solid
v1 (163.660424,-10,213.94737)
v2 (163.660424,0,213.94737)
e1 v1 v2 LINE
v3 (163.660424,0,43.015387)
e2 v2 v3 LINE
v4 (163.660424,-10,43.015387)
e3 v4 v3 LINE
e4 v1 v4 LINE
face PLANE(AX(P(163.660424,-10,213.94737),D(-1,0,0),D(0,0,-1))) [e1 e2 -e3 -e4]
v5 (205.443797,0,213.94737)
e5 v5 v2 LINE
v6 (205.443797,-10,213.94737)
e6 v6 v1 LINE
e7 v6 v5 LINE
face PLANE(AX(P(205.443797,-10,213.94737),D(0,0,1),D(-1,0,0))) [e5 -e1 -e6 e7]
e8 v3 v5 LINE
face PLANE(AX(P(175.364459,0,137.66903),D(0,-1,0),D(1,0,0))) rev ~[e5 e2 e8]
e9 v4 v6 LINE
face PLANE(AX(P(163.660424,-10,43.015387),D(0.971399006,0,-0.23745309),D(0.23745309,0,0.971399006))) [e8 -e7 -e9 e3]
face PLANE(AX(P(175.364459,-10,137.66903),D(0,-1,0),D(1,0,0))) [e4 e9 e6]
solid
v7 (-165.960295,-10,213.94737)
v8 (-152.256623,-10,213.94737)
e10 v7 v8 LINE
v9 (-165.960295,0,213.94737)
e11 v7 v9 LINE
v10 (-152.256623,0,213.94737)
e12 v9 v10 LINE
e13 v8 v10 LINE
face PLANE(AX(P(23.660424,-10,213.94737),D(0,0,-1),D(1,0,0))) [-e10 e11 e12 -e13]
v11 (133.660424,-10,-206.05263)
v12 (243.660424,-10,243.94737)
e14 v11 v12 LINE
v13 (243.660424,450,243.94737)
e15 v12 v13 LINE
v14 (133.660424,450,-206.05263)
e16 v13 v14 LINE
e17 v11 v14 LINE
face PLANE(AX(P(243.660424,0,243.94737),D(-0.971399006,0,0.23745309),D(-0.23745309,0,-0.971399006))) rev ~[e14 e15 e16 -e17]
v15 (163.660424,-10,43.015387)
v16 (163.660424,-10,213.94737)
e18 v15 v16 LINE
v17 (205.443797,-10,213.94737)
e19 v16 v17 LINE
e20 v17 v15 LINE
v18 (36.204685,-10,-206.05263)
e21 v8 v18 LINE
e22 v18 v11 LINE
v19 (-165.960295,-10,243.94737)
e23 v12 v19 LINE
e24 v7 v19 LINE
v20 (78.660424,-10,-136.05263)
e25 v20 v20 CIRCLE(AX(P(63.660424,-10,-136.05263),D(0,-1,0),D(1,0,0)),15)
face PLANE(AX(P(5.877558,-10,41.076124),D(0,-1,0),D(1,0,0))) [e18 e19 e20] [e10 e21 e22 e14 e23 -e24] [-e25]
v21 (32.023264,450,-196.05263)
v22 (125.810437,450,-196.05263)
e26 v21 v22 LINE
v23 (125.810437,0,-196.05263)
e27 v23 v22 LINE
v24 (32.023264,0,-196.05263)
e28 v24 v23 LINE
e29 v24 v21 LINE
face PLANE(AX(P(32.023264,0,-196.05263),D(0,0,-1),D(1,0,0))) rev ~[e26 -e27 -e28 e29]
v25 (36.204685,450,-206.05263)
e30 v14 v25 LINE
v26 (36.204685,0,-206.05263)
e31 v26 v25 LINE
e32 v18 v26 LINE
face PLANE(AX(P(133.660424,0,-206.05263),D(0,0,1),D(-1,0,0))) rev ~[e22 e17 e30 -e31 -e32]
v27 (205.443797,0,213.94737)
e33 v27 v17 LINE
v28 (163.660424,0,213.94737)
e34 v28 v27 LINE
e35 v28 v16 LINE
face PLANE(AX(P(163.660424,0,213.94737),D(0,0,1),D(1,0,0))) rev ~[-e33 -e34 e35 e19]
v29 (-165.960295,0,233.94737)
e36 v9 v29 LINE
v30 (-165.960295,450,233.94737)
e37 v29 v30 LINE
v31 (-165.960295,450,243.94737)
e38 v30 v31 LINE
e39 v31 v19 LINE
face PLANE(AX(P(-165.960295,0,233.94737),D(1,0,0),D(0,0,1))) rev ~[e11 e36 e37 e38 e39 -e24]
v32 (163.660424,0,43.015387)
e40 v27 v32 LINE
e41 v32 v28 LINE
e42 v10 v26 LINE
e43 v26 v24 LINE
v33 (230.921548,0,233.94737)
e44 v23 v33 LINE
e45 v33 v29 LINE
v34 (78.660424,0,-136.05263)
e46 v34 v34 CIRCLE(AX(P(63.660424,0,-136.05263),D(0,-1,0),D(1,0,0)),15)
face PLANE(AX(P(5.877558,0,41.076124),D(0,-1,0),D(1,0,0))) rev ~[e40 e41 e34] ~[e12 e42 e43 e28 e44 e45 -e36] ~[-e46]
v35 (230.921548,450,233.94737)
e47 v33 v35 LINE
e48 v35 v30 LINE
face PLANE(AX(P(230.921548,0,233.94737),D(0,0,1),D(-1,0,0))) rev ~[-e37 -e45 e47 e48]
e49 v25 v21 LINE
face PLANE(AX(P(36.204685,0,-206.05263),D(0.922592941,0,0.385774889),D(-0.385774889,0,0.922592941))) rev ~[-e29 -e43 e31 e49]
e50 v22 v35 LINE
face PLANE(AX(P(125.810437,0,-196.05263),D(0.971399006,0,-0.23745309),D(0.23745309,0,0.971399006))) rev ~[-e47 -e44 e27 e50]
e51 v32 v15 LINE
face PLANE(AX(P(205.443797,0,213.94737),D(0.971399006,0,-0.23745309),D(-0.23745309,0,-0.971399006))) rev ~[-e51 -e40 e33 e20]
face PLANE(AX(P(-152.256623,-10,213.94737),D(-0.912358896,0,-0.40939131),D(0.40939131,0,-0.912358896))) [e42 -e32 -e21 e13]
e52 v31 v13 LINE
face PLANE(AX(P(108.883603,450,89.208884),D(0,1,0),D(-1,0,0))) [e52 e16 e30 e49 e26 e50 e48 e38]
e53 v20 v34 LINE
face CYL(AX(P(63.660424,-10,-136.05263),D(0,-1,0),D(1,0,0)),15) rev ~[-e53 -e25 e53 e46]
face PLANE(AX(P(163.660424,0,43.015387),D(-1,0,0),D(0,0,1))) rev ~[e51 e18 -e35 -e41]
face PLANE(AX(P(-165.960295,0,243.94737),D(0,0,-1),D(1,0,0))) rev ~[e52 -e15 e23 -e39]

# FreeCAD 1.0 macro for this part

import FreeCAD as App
import Part
import Sketcher

V = App.Vector
Q = App.Units.Quantity


def add_polygon(sketch, points):
    """Adds a closed chain of lines whose ends are joined by coincident constraints."""
    first, n = sketch.GeometryCount, len(points)
    for a, b in zip(points, points[1:] + points[:1]):
        sketch.addGeometry(Part.LineSegment(App.Vector(*a, 0), App.Vector(*b, 0)), False)
    for i in range(n):
        sketch.addConstraint(Sketcher.Constraint("Coincident", first + i, 2, first + (i + 1) % n, 1))

doc = App.newDocument("Part")
body = doc.addObject("PartDesign::Body", "Body")

# Sketch on XZ plane
sketch1 = doc.addObject("Sketcher::SketchObject", "Sketch")
body.addObject(sketch1)
sketch1.AttachmentSupport = (doc.XZ_Plane, [""])
sketch1.MapMode = "FlatFace"
add_polygon(sketch1, [(-576, 244), (-466, -206), (134, -206), (244, 244)])  # lines 0-3
add_polygon(sketch1, [(104, -176), (-436, -176), (-436, 214), (104, 214)])  # lines 4-7
add_polygon(sketch1, [(-496, 214), (-496, 43), (-537, 214)])  # lines 8-10
add_polygon(sketch1, [(164, 43), (164, 214), (205, 214)])  # lines 11-13
sketch1.addConstraint(Sketcher.Constraint("Horizontal", 1))
sketch1.addConstraint(Sketcher.Constraint("Horizontal", 3))
sketch1.addConstraint(Sketcher.Constraint("Horizontal", 4))
sketch1.addConstraint(Sketcher.Constraint("Vertical", 5))
sketch1.addConstraint(Sketcher.Constraint("Horizontal", 6))
sketch1.addConstraint(Sketcher.Constraint("Vertical", 7))
sketch1.addConstraint(Sketcher.Constraint("Vertical", 8))
sketch1.addConstraint(Sketcher.Constraint("Horizontal", 10))
sketch1.addConstraint(Sketcher.Constraint("Vertical", 11))
sketch1.addConstraint(Sketcher.Constraint("Horizontal", 12))
sketch1.addConstraint(Sketcher.Constraint("Parallel", 0, 9))
sketch1.addConstraint(Sketcher.Constraint("Parallel", 2, 13))
sketch1.addConstraint(Sketcher.Constraint("Horizontal", 6, 2, 9, 2))
sketch1.addConstraint(Sketcher.Constraint("Horizontal", 10, 2, 11, 2))
sketch1.addConstraint(Sketcher.Constraint("Horizontal", 8, 2, 13, 2))
sketch1.addConstraint(Sketcher.Constraint("Equal", 10, 12))
sketch1.addConstraint(Sketcher.Constraint("DistanceX", 4, 2, 4, 1, Q("540 mm")))
sketch1.addConstraint(Sketcher.Constraint("DistanceY", 5, 1, 5, 2, Q("390 mm")))
sketch1.addConstraint(Sketcher.Constraint("DistanceX", 1, 2, 2, 2, Q("110 mm")))
sketch1.addConstraint(Sketcher.Constraint("DistanceY", 1, 2, 2, 2, Q("450 mm")))
sketch1.addConstraint(Sketcher.Constraint("DistanceY", 0, 2, 4, 2, Q("30 mm")))
sketch1.addConstraint(Sketcher.Constraint("DistanceX", 4, 2, 1, 2, Q("570 mm")))
sketch1.addConstraint(Sketcher.Constraint("DistanceX", 3, 2, 8, 2, Q("80 mm")))
sketch1.addConstraint(Sketcher.Constraint("DistanceX", 6, 2, 11, 2, Q("60 mm")))
sketch1.addConstraint(Sketcher.Constraint("Distance", 9, Q("175.96475 mm")))
sketch1.addConstraint(Sketcher.Constraint("DistanceX", 1, 1, 1, 2, Q("599.241438 mm")))
sketch1.addConstraint(Sketcher.Constraint("DistanceY", 0, 2, -1, 1, Q("206.05263 mm")))
sketch1.addConstraint(Sketcher.Constraint("DistanceX", 0, 2, -1, 1, Q("465.581014 mm")))
pad1 = doc.addObject("PartDesign::Pad", "Pad")
body.addObject(pad1)
pad1.Profile = sketch1
pad1.Length = 10

# Sketch on XZ plane
sketch2 = doc.addObject("Sketcher::SketchObject", "Sketch001")
body.addObject(sketch2)
sketch2.AttachmentSupport = (doc.XZ_Plane, [""])
sketch2.MapMode = "FlatFace"
sketch2.AttachmentOffset = App.Placement(V(0, 0, 10), App.Rotation())
add_polygon(sketch2, [(-436, 214), (-436, 134), (-356, 134), (-356, 214)])  # lines 0-3
sketch2.addGeometry(Part.Circle(V(-396, 174, 0), V(0, 0, 1), 15), False)  # 4
add_polygon(sketch2, [(24, 214), (24, 134), (104, 134), (104, 214)])  # lines 5-8
sketch2.addGeometry(Part.Circle(V(64, 174, 0), V(0, 0, 1), 15), False)  # 9
add_polygon(sketch2, [(24, -96), (24, -176), (104, -176), (104, -96)])  # lines 10-13
sketch2.addGeometry(Part.Circle(V(64, -136, 0), V(0, 0, 1), 15), False)  # 14
add_polygon(sketch2, [(-436, -96), (-436, -176), (-356, -176), (-356, -96)])  # lines 15-18
sketch2.addGeometry(Part.Circle(V(-396, -136, 0), V(0, 0, 1), 15), False)  # 19
sketch2.addConstraint(Sketcher.Constraint("Vertical", 0))
sketch2.addConstraint(Sketcher.Constraint("Horizontal", 1))
sketch2.addConstraint(Sketcher.Constraint("Vertical", 2))
sketch2.addConstraint(Sketcher.Constraint("Horizontal", 3))
sketch2.addConstraint(Sketcher.Constraint("Vertical", 5))
sketch2.addConstraint(Sketcher.Constraint("Horizontal", 6))
sketch2.addConstraint(Sketcher.Constraint("Vertical", 7))
sketch2.addConstraint(Sketcher.Constraint("Horizontal", 8))
sketch2.addConstraint(Sketcher.Constraint("Vertical", 10))
sketch2.addConstraint(Sketcher.Constraint("Horizontal", 11))
sketch2.addConstraint(Sketcher.Constraint("Vertical", 12))
sketch2.addConstraint(Sketcher.Constraint("Horizontal", 13))
sketch2.addConstraint(Sketcher.Constraint("Vertical", 15))
sketch2.addConstraint(Sketcher.Constraint("Horizontal", 16))
sketch2.addConstraint(Sketcher.Constraint("Vertical", 17))
sketch2.addConstraint(Sketcher.Constraint("Horizontal", 18))
sketch2.addConstraint(Sketcher.Constraint("Equal", 4, 9))
sketch2.addConstraint(Sketcher.Constraint("Equal", 9, 14))
sketch2.addConstraint(Sketcher.Constraint("Equal", 14, 19))
sketch2.addConstraint(Sketcher.Constraint("Horizontal", 4, 3, 9, 3))
sketch2.addConstraint(Sketcher.Constraint("Horizontal", 14, 3, 19, 3))
sketch2.addConstraint(Sketcher.Constraint("Horizontal", 1, 2, 5, 2))
sketch2.addConstraint(Sketcher.Constraint("Horizontal", 3, 2, 7, 2))
sketch2.addConstraint(Sketcher.Constraint("Horizontal", 11, 2, 15, 2))
sketch2.addConstraint(Sketcher.Constraint("Horizontal", 13, 2, 17, 2))
sketch2.addConstraint(Sketcher.Constraint("Vertical", 9, 3, 14, 3))
sketch2.addConstraint(Sketcher.Constraint("Vertical", 4, 3, 19, 3))
sketch2.addConstraint(Sketcher.Constraint("Vertical", 8, 2, 10, 2))
sketch2.addConstraint(Sketcher.Constraint("Vertical", 7, 2, 11, 2))
sketch2.addConstraint(Sketcher.Constraint("Vertical", 3, 2, 15, 2))
sketch2.addConstraint(Sketcher.Constraint("Vertical", 2, 2, 16, 2))
sketch2.addConstraint(Sketcher.Constraint("Equal", 3, 6))
sketch2.addConstraint(Sketcher.Constraint("Equal", 18, 0))
sketch2.addConstraint(Sketcher.Constraint("Equal", 7, 10))
sketch2.addConstraint(Sketcher.Constraint("Diameter", 4, Q("30 mm")))
sketch2.addConstraint(Sketcher.Constraint("DistanceX", 1, 1, 1, 2, Q("80 mm")))
sketch2.addConstraint(Sketcher.Constraint("DistanceX", 4, 3, 9, 3, Q("460 mm")))
sketch2.addConstraint(Sketcher.Constraint("DistanceY", 14, 3, 9, 3, Q("310 mm")))
sketch2.addConstraint(Sketcher.Constraint("DistanceX", 0, 2, 4, 3, Q("40 mm")))
sketch2.addConstraint(Sketcher.Constraint("DistanceY", 0, 2, 4, 3, Q("40 mm")))
sketch2.addConstraint(Sketcher.Constraint("DistanceX", 5, 2, 9, 3, Q("40 mm")))
sketch2.addConstraint(Sketcher.Constraint("DistanceY", 10, 2, 14, 3, Q("40 mm")))
sketch2.addConstraint(Sketcher.Constraint("DistanceY", -1, 1, 4, 3, Q("173.94737 mm")))
sketch2.addConstraint(Sketcher.Constraint("DistanceX", 4, 3, -1, 1, Q("396.339576 mm")))
pad2 = doc.addObject("PartDesign::Pad", "Pad001")
body.addObject(pad2)
pad2.Profile = sketch2
pad2.Length = 10
pad2.Reversed = True

# Sketch on XZ plane
sketch3 = doc.addObject("Sketcher::SketchObject", "Sketch002")
body.addObject(sketch3)
sketch3.AttachmentSupport = (doc.XZ_Plane, [""])
sketch3.MapMode = "FlatFace"
sketch3.AttachmentOffset = App.Placement(V(0, 0, 10), App.Rotation())
add_polygon(sketch3, [(-670, -206), (-166, -206), (-166, 244), (-670, 244)])  # lines 0-3
sketch3.addGeometry(Part.Circle(V(-396, -136, 0), V(0, 0, 1), 15), False)  # 4
add_polygon(sketch3, [(-537, 214), (-496, 214), (-496, 43)])  # lines 5-7
sketch3.addGeometry(Part.Circle(V(-396, 174, 0), V(0, 0, 1), 15), False)  # 8
sketch3.addConstraint(Sketcher.Constraint("Horizontal", 0))
sketch3.addConstraint(Sketcher.Constraint("Vertical", 1))
sketch3.addConstraint(Sketcher.Constraint("Horizontal", 2))
sketch3.addConstraint(Sketcher.Constraint("Vertical", 3))
sketch3.addConstraint(Sketcher.Constraint("Horizontal", 5))
sketch3.addConstraint(Sketcher.Constraint("Vertical", 6))
sketch3.addConstraint(Sketcher.Constraint("Equal", 4, 8))
sketch3.addConstraint(Sketcher.Constraint("Vertical", 4, 3, 8, 3))
sketch3.addConstraint(Sketcher.Constraint("Diameter", 4, Q("30 mm")))
sketch3.addConstraint(Sketcher.Constraint("DistanceY", 1, 1, 1, 2, Q("450 mm")))
sketch3.addConstraint(Sketcher.Constraint("DistanceY", 4, 3, 8, 3, Q("310 mm")))
sketch3.addConstraint(Sketcher.Constraint("DistanceY", 0, 2, 4, 3, Q("70 mm")))
sketch3.addConstraint(Sketcher.Constraint("DistanceY", 8, 3, 5, 2, Q("40 mm")))
sketch3.addConstraint(Sketcher.Constraint("Distance", 7, Q("175.96475 mm")))
sketch3.addConstraint(Sketcher.Constraint("DistanceX", 0, 1, 0, 2, Q("503.675597 mm")))
sketch3.addConstraint(Sketcher.Constraint("DistanceX", 5, 1, 5, 2, Q("41.783374 mm")))
sketch3.addConstraint(Sketcher.Constraint("DistanceY", 4, 3, -1, 1, Q("136.05263 mm")))
sketch3.addConstraint(Sketcher.Constraint("DistanceX", 2, 2, -1, 1, Q("669.635892 mm")))
sketch3.addConstraint(Sketcher.Constraint("DistanceX", 4, 3, 0, 2, Q("230.379281 mm")))
sketch3.addConstraint(Sketcher.Constraint("DistanceX", 5, 2, 1, 2, Q("329.620719 mm")))
pocket1 = doc.addObject("PartDesign::Pocket", "Pocket")
body.addObject(pocket1)
pocket1.Profile = sketch3
pocket1.Length = 25

# Sketch on XZ plane
sketch4 = doc.addObject("Sketcher::SketchObject", "Sketch003")
body.addObject(sketch4)
sketch4.AttachmentSupport = (doc.XZ_Plane, [""])
sketch4.MapMode = "FlatFace"
sketch4.AttachmentOffset = App.Placement(V(0, 0, 10), App.Rotation())
add_polygon(sketch4, [(36, -206), (24, -176), (-166, -176), (-166, -206)])  # lines 0-3
sketch4.addConstraint(Sketcher.Constraint("Horizontal", 1))
sketch4.addConstraint(Sketcher.Constraint("Vertical", 2))
sketch4.addConstraint(Sketcher.Constraint("Horizontal", 3))
sketch4.addConstraint(Sketcher.Constraint("DistanceY", 2, 2, 2, 1, Q("30 mm")))
sketch4.addConstraint(Sketcher.Constraint("DistanceX", 1, 2, 1, 1, Q("189.620719 mm")))
sketch4.addConstraint(Sketcher.Constraint("DistanceX", 3, 1, 3, 2, Q("202.16498 mm")))
sketch4.addConstraint(Sketcher.Constraint("DistanceY", 0, 2, -1, 1, Q("176.05263 mm")))
sketch4.addConstraint(Sketcher.Constraint("DistanceX", -1, 1, 0, 2, Q("23.660424 mm")))
pocket2 = doc.addObject("PartDesign::Pocket", "Pocket001")
body.addObject(pocket2)
pocket2.Profile = sketch4
pocket2.Length = 25

# Sketch on XZ plane
sketch5 = doc.addObject("Sketcher::SketchObject", "Sketch004")
body.addObject(sketch5)
sketch5.AttachmentSupport = (doc.XZ_Plane, [""])
sketch5.MapMode = "FlatFace"
sketch5.AttachmentOffset = App.Placement(V(0, 0, 10), App.Rotation())
add_polygon(sketch5, [(24, 214), (24, 134), (104, 134), (104, 214)])  # lines 0-3
sketch5.addGeometry(Part.Circle(V(64, 174, 0), V(0, 0, 1), 15), False)  # 4
sketch5.addConstraint(Sketcher.Constraint("Vertical", 0))
sketch5.addConstraint(Sketcher.Constraint("Horizontal", 1))
sketch5.addConstraint(Sketcher.Constraint("Vertical", 2))
sketch5.addConstraint(Sketcher.Constraint("Horizontal", 3))
sketch5.addConstraint(Sketcher.Constraint("Equal", 3, 0))
sketch5.addConstraint(Sketcher.Constraint("Diameter", 4, Q("30 mm")))
sketch5.addConstraint(Sketcher.Constraint("DistanceX", 1, 1, 1, 2, Q("80 mm")))
sketch5.addConstraint(Sketcher.Constraint("DistanceX", 0, 2, 4, 3, Q("40 mm")))
sketch5.addConstraint(Sketcher.Constraint("DistanceY", 0, 2, 4, 3, Q("40 mm")))
sketch5.addConstraint(Sketcher.Constraint("DistanceY", -1, 1, 4, 3, Q("173.94737 mm")))
sketch5.addConstraint(Sketcher.Constraint("DistanceX", -1, 1, 4, 3, Q("63.660424 mm")))
pocket3 = doc.addObject("PartDesign::Pocket", "Pocket002")
body.addObject(pocket3)
pocket3.Profile = sketch5
pocket3.Length = 25

# Sketch on XZ plane
sketch6 = doc.addObject("Sketcher::SketchObject", "Sketch005")
body.addObject(sketch6)
sketch6.AttachmentSupport = (doc.XZ_Plane, [""])
sketch6.MapMode = "FlatFace"
add_polygon(sketch6, [(-166, 244), (244, 244), (134, -206), (36, -206), (32, -196), (126, -196), (231, 234), (-166, 234)])  # lines 0-7
sketch6.addConstraint(Sketcher.Constraint("Horizontal", 0))
sketch6.addConstraint(Sketcher.Constraint("Horizontal", 2))
sketch6.addConstraint(Sketcher.Constraint("Horizontal", 4))
sketch6.addConstraint(Sketcher.Constraint("Horizontal", 6))
sketch6.addConstraint(Sketcher.Constraint("Vertical", 7))
sketch6.addConstraint(Sketcher.Constraint("Parallel", 1, 5))
sketch6.addConstraint(Sketcher.Constraint("DistanceY", 7, 1, 7, 2, Q("10 mm")))
sketch6.addConstraint(Sketcher.Constraint("DistanceX", 1, 2, 0, 2, Q("110 mm")))
sketch6.addConstraint(Sketcher.Constraint("DistanceY", 1, 2, 0, 2, Q("450 mm")))
sketch6.addConstraint(Sketcher.Constraint("DistanceY", 2, 2, 3, 2, Q("10 mm")))
sketch6.addConstraint(Sketcher.Constraint("DistanceX", 0, 1, 0, 2, Q("409.620719 mm")))
sketch6.addConstraint(Sketcher.Constraint("DistanceX", 2, 2, 2, 1, Q("97.455739 mm")))
sketch6.addConstraint(Sketcher.Constraint("DistanceX", 4, 1, 4, 2, Q("93.787173 mm")))
sketch6.addConstraint(Sketcher.Constraint("DistanceX", 6, 2, 6, 1, Q("396.881843 mm")))
sketch6.addConstraint(Sketcher.Constraint("DistanceY", -1, 1, 0, 2, Q("243.94737 mm")))
sketch6.addConstraint(Sketcher.Constraint("DistanceX", -1, 1, 5, 2, Q("230.921548 mm")))
pad3 = doc.addObject("PartDesign::Pad", "Pad002")
body.addObject(pad3)
pad3.Profile = sketch6
pad3.Length = 450
pad3.Reversed = True

# Sketch on XZ plane
sketch7 = doc.addObject("Sketcher::SketchObject", "Sketch006")
body.addObject(sketch7)
sketch7.AttachmentSupport = (doc.XZ_Plane, [""])
sketch7.MapMode = "FlatFace"
sketch7.AttachmentOffset = App.Placement(V(0, 0, 10), App.Rotation())
add_polygon(sketch7, [(-152, 214), (36, -206), (24, -176), (24, -96), (104, -96), (104, 214)])  # lines 0-5
sketch7.addConstraint(Sketcher.Constraint("Vertical", 2))
sketch7.addConstraint(Sketcher.Constraint("Horizontal", 3))
sketch7.addConstraint(Sketcher.Constraint("Vertical", 4))
sketch7.addConstraint(Sketcher.Constraint("Horizontal", 5))
sketch7.addConstraint(Sketcher.Constraint("Equal", 3, 2))
sketch7.addConstraint(Sketcher.Constraint("DistanceX", 3, 1, 3, 2, Q("80 mm")))
sketch7.addConstraint(Sketcher.Constraint("DistanceY", 4, 1, 4, 2, Q("310 mm")))
sketch7.addConstraint(Sketcher.Constraint("DistanceY", 0, 2, 1, 2, Q("30 mm")))
sketch7.addConstraint(Sketcher.Constraint("Distance", 1, Q("32.517049 mm")))
sketch7.addConstraint(Sketcher.Constraint("DistanceX", 5, 2, 5, 1, Q("255.917046 mm")))
sketch7.addConstraint(Sketcher.Constraint("DistanceY", 0, 2, -1, 1, Q("206.05263 mm")))
sketch7.addConstraint(Sketcher.Constraint("DistanceX", -1, 1, 0, 2, Q("36.204685 mm")))
pad4 = doc.addObject("PartDesign::Pad", "Pad003")
body.addObject(pad4)
pad4.Profile = sketch7
pad4.Length = 10
pad4.Reversed = True
body2 = doc.addObject("PartDesign::Body", "Body001")

# Sketch on XZ plane
sketch8 = doc.addObject("Sketcher::SketchObject", "Sketch007")
body2.addObject(sketch8)
sketch8.AttachmentSupport = (doc.getObject("XZ_Plane001"), [""])
sketch8.MapMode = "FlatFace"
sketch8.AttachmentOffset = App.Placement(V(0, 0, 10), App.Rotation())
add_polygon(sketch8, [(205, 214), (164, 214), (164, 43)])  # lines 0-2
sketch8.addConstraint(Sketcher.Constraint("Horizontal", 0))
sketch8.addConstraint(Sketcher.Constraint("Vertical", 1))
sketch8.addConstraint(Sketcher.Constraint("Distance", 2, Q("175.96475 mm")))
sketch8.addConstraint(Sketcher.Constraint("DistanceX", 0, 2, 0, 1, Q("41.783374 mm")))
sketch8.addConstraint(Sketcher.Constraint("DistanceY", -1, 1, 0, 2, Q("213.94737 mm")))
sketch8.addConstraint(Sketcher.Constraint("DistanceX", -1, 1, 0, 2, Q("163.660424 mm")))
pad5 = doc.addObject("PartDesign::Pad", "Pad004")
body2.addObject(pad5)
pad5.Profile = sketch8
pad5.Length = 10
pad5.Reversed = True

doc.recompute()
